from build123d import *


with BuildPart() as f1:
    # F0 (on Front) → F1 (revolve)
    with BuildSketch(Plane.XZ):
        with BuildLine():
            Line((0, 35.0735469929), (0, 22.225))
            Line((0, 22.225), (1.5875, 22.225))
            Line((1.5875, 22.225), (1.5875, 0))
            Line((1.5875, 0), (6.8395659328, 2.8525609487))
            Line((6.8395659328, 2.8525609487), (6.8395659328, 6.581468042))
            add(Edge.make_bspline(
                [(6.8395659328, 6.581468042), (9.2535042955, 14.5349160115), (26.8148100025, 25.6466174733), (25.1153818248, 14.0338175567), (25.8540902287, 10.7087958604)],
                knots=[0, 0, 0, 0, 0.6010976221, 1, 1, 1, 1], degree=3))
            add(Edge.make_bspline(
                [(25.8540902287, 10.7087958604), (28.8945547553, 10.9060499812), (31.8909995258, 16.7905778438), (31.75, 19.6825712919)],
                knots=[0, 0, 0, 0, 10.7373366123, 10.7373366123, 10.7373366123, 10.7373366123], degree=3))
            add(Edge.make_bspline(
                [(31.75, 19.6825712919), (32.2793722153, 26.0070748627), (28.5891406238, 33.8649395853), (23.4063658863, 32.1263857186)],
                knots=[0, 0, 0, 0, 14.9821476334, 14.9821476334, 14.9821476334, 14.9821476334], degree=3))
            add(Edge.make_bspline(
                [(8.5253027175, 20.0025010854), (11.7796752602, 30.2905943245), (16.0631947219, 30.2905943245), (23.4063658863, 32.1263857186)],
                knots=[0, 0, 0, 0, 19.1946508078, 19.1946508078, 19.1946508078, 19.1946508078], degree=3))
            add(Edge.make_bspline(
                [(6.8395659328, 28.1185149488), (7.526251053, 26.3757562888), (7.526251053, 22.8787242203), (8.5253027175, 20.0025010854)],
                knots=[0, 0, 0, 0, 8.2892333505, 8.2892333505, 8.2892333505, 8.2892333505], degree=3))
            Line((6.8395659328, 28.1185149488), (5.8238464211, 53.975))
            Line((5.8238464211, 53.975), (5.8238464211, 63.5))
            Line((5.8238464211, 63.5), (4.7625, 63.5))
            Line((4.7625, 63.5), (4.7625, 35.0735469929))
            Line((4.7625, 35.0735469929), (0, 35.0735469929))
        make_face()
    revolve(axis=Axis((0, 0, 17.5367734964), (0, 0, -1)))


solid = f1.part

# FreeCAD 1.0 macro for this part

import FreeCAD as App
import Part
import Sketcher
from FreeCAD import Vector
Q = App.Units.Quantity

doc = App.newDocument("Part")
body = doc.addObject("PartDesign::Body", "Body")

sketch1 = body.newObject("Sketcher::SketchObject", "Sketch")
sketch1.AttachmentSupport = (doc.getObject("XZ_Plane"), [""])
sketch1.MapMode = "FlatFace"
sketch1.addGeometry(Part.LineSegment(Vector(0, 35.073547, 0), Vector(0, 22.225, 0)), False)
sketch1.addGeometry(Part.LineSegment(Vector(0, 22.225, 0), Vector(1.5875, 22.225, 0)), False)
sketch1.addGeometry(Part.LineSegment(Vector(1.5875, 22.225, 0), Vector(1.5875, 0, 0)), False)
sketch1.addGeometry(Part.LineSegment(Vector(1.5875, 0, 0), Vector(6.839566, 2.852561, 0)), False)
sketch1.addGeometry(Part.LineSegment(Vector(6.839566, 2.852561, 0), Vector(6.839566, 6.581468, 0)), False)
sketch1.addGeometry(Part.BSplineCurve([Vector(6.839566, 6.581468, 0), Vector(9.253504, 14.534916, 0), Vector(26.81481, 25.646617, 0), Vector(25.115382, 14.033818, 0), Vector(25.85409, 10.708796, 0)], [4, 1, 4], [0, 0.601097622, 1], False, 3, [1, 1, 1, 1, 1], False), False)
sketch1.addGeometry(Part.BSplineCurve([Vector(25.85409, 10.708796, 0), Vector(28.894555, 10.90605, 0), Vector(31.891, 16.790578, 0), Vector(31.75, 19.682571, 0)], [4, 4], [0, 10.737336612], False, 3, [1, 1, 1, 1], False), False)
sketch1.addGeometry(Part.BSplineCurve([Vector(31.75, 19.682571, 0), Vector(32.279372, 26.007075, 0), Vector(28.589141, 33.86494, 0), Vector(23.406366, 32.126386, 0)], [4, 4], [0, 14.982147633], False, 3, [1, 1, 1, 1], False), False)
sketch1.addGeometry(Part.BSplineCurve([Vector(8.525303, 20.002501, 0), Vector(11.779675, 30.290594, 0), Vector(16.063195, 30.290594, 0), Vector(23.406366, 32.126386, 0)], [4, 4], [0, 19.194650808], False, 3, [1, 1, 1, 1], False), False)
sketch1.addGeometry(Part.BSplineCurve([Vector(6.839566, 28.118515, 0), Vector(7.526251, 26.375756, 0), Vector(7.526251, 22.878724, 0), Vector(8.525303, 20.002501, 0)], [4, 4], [0, 8.28923335], False, 3, [1, 1, 1, 1], False), False)
sketch1.addGeometry(Part.LineSegment(Vector(6.839566, 28.118515, 0), Vector(5.823846, 53.975, 0)), False)
sketch1.addGeometry(Part.LineSegment(Vector(5.823846, 53.975, 0), Vector(5.823846, 63.5, 0)), False)
sketch1.addGeometry(Part.LineSegment(Vector(5.823846, 63.5, 0), Vector(4.7625, 63.5, 0)), False)
sketch1.addGeometry(Part.LineSegment(Vector(4.7625, 63.5, 0), Vector(4.7625, 35.073547, 0)), False)
sketch1.addGeometry(Part.LineSegment(Vector(4.7625, 35.073547, 0), Vector(0, 35.073547, 0)), False)
sketch1.addConstraint(Sketcher.Constraint("Block", 5))
sketch1.addConstraint(Sketcher.Constraint("Block", 6))
sketch1.addConstraint(Sketcher.Constraint("Block", 7))
sketch1.addConstraint(Sketcher.Constraint("Block", 8))
sketch1.addConstraint(Sketcher.Constraint("Block", 9))
sketch1.addConstraint(Sketcher.Constraint("Coincident", 0, 2, 1, 1))
sketch1.addConstraint(Sketcher.Constraint("Coincident", 1, 2, 2, 1))
sketch1.addConstraint(Sketcher.Constraint("Coincident", 2, 2, 3, 1))
sketch1.addConstraint(Sketcher.Constraint("Coincident", 3, 2, 4, 1))
sketch1.addConstraint(Sketcher.Constraint("Coincident", 4, 2, 5, 1))
sketch1.addConstraint(Sketcher.Constraint("Coincident", 9, 1, 10, 1))
sketch1.addConstraint(Sketcher.Constraint("Coincident", 10, 2, 11, 1))
sketch1.addConstraint(Sketcher.Constraint("Coincident", 11, 2, 12, 1))
sketch1.addConstraint(Sketcher.Constraint("Coincident", 12, 2, 13, 1))
sketch1.addConstraint(Sketcher.Constraint("Coincident", 13, 2, 14, 1))
sketch1.addConstraint(Sketcher.Constraint("Coincident", 14, 2, 0, 1))
sketch1.addConstraint(Sketcher.Constraint("Vertical", 0))
sketch1.addConstraint(Sketcher.Constraint("Horizontal", 1))
sketch1.addConstraint(Sketcher.Constraint("Vertical", 2))
sketch1.addConstraint(Sketcher.Constraint("Vertical", 4))
sketch1.addConstraint(Sketcher.Constraint("Vertical", 11))
sketch1.addConstraint(Sketcher.Constraint("Horizontal", 12))
sketch1.addConstraint(Sketcher.Constraint("Vertical", 13))
sketch1.addConstraint(Sketcher.Constraint("Horizontal", 14))
sketch1.addConstraint(Sketcher.Constraint("PointOnObject", 0, 2, -2))
sketch1.addConstraint(Sketcher.Constraint("PointOnObject", 2, 2, -1))
sketch1.addConstraint(Sketcher.Constraint("DistanceY", -1, 1, 11, 2, Q("2.5 in")))
sketch1.addConstraint(Sketcher.Constraint("DistanceX", 1, 1, 1, 2, Q("0.0625 in")))
sketch1.addConstraint(Sketcher.Constraint("DistanceX", 14, 2, 14, 1, Q("0.1875 in")))
sketch1.addConstraint(Sketcher.Constraint("DistanceY", 2, 2, 2, 1, Q("0.875 in")))
sketch1.addConstraint(Sketcher.Constraint("DistanceY", 11, 1, 11, 2, Q("0.375 in")))
sketch1.addConstraint(Sketcher.Constraint("Distance", 3, 5.97673))
sketch1.addConstraint(Sketcher.Constraint("DistanceX", 12, 2, 12, 1, 1.061346))
sketch1.addConstraint(Sketcher.Constraint("DistanceY", 0, 2, 0, 1, 12.848547))
revolution = body.newObject("PartDesign::Revolution", "Revolution")
revolution.Profile = sketch1
revolution.ReferenceAxis = (sketch1, ["V_Axis"])
revolution.Angle = 360

doc.recompute()
